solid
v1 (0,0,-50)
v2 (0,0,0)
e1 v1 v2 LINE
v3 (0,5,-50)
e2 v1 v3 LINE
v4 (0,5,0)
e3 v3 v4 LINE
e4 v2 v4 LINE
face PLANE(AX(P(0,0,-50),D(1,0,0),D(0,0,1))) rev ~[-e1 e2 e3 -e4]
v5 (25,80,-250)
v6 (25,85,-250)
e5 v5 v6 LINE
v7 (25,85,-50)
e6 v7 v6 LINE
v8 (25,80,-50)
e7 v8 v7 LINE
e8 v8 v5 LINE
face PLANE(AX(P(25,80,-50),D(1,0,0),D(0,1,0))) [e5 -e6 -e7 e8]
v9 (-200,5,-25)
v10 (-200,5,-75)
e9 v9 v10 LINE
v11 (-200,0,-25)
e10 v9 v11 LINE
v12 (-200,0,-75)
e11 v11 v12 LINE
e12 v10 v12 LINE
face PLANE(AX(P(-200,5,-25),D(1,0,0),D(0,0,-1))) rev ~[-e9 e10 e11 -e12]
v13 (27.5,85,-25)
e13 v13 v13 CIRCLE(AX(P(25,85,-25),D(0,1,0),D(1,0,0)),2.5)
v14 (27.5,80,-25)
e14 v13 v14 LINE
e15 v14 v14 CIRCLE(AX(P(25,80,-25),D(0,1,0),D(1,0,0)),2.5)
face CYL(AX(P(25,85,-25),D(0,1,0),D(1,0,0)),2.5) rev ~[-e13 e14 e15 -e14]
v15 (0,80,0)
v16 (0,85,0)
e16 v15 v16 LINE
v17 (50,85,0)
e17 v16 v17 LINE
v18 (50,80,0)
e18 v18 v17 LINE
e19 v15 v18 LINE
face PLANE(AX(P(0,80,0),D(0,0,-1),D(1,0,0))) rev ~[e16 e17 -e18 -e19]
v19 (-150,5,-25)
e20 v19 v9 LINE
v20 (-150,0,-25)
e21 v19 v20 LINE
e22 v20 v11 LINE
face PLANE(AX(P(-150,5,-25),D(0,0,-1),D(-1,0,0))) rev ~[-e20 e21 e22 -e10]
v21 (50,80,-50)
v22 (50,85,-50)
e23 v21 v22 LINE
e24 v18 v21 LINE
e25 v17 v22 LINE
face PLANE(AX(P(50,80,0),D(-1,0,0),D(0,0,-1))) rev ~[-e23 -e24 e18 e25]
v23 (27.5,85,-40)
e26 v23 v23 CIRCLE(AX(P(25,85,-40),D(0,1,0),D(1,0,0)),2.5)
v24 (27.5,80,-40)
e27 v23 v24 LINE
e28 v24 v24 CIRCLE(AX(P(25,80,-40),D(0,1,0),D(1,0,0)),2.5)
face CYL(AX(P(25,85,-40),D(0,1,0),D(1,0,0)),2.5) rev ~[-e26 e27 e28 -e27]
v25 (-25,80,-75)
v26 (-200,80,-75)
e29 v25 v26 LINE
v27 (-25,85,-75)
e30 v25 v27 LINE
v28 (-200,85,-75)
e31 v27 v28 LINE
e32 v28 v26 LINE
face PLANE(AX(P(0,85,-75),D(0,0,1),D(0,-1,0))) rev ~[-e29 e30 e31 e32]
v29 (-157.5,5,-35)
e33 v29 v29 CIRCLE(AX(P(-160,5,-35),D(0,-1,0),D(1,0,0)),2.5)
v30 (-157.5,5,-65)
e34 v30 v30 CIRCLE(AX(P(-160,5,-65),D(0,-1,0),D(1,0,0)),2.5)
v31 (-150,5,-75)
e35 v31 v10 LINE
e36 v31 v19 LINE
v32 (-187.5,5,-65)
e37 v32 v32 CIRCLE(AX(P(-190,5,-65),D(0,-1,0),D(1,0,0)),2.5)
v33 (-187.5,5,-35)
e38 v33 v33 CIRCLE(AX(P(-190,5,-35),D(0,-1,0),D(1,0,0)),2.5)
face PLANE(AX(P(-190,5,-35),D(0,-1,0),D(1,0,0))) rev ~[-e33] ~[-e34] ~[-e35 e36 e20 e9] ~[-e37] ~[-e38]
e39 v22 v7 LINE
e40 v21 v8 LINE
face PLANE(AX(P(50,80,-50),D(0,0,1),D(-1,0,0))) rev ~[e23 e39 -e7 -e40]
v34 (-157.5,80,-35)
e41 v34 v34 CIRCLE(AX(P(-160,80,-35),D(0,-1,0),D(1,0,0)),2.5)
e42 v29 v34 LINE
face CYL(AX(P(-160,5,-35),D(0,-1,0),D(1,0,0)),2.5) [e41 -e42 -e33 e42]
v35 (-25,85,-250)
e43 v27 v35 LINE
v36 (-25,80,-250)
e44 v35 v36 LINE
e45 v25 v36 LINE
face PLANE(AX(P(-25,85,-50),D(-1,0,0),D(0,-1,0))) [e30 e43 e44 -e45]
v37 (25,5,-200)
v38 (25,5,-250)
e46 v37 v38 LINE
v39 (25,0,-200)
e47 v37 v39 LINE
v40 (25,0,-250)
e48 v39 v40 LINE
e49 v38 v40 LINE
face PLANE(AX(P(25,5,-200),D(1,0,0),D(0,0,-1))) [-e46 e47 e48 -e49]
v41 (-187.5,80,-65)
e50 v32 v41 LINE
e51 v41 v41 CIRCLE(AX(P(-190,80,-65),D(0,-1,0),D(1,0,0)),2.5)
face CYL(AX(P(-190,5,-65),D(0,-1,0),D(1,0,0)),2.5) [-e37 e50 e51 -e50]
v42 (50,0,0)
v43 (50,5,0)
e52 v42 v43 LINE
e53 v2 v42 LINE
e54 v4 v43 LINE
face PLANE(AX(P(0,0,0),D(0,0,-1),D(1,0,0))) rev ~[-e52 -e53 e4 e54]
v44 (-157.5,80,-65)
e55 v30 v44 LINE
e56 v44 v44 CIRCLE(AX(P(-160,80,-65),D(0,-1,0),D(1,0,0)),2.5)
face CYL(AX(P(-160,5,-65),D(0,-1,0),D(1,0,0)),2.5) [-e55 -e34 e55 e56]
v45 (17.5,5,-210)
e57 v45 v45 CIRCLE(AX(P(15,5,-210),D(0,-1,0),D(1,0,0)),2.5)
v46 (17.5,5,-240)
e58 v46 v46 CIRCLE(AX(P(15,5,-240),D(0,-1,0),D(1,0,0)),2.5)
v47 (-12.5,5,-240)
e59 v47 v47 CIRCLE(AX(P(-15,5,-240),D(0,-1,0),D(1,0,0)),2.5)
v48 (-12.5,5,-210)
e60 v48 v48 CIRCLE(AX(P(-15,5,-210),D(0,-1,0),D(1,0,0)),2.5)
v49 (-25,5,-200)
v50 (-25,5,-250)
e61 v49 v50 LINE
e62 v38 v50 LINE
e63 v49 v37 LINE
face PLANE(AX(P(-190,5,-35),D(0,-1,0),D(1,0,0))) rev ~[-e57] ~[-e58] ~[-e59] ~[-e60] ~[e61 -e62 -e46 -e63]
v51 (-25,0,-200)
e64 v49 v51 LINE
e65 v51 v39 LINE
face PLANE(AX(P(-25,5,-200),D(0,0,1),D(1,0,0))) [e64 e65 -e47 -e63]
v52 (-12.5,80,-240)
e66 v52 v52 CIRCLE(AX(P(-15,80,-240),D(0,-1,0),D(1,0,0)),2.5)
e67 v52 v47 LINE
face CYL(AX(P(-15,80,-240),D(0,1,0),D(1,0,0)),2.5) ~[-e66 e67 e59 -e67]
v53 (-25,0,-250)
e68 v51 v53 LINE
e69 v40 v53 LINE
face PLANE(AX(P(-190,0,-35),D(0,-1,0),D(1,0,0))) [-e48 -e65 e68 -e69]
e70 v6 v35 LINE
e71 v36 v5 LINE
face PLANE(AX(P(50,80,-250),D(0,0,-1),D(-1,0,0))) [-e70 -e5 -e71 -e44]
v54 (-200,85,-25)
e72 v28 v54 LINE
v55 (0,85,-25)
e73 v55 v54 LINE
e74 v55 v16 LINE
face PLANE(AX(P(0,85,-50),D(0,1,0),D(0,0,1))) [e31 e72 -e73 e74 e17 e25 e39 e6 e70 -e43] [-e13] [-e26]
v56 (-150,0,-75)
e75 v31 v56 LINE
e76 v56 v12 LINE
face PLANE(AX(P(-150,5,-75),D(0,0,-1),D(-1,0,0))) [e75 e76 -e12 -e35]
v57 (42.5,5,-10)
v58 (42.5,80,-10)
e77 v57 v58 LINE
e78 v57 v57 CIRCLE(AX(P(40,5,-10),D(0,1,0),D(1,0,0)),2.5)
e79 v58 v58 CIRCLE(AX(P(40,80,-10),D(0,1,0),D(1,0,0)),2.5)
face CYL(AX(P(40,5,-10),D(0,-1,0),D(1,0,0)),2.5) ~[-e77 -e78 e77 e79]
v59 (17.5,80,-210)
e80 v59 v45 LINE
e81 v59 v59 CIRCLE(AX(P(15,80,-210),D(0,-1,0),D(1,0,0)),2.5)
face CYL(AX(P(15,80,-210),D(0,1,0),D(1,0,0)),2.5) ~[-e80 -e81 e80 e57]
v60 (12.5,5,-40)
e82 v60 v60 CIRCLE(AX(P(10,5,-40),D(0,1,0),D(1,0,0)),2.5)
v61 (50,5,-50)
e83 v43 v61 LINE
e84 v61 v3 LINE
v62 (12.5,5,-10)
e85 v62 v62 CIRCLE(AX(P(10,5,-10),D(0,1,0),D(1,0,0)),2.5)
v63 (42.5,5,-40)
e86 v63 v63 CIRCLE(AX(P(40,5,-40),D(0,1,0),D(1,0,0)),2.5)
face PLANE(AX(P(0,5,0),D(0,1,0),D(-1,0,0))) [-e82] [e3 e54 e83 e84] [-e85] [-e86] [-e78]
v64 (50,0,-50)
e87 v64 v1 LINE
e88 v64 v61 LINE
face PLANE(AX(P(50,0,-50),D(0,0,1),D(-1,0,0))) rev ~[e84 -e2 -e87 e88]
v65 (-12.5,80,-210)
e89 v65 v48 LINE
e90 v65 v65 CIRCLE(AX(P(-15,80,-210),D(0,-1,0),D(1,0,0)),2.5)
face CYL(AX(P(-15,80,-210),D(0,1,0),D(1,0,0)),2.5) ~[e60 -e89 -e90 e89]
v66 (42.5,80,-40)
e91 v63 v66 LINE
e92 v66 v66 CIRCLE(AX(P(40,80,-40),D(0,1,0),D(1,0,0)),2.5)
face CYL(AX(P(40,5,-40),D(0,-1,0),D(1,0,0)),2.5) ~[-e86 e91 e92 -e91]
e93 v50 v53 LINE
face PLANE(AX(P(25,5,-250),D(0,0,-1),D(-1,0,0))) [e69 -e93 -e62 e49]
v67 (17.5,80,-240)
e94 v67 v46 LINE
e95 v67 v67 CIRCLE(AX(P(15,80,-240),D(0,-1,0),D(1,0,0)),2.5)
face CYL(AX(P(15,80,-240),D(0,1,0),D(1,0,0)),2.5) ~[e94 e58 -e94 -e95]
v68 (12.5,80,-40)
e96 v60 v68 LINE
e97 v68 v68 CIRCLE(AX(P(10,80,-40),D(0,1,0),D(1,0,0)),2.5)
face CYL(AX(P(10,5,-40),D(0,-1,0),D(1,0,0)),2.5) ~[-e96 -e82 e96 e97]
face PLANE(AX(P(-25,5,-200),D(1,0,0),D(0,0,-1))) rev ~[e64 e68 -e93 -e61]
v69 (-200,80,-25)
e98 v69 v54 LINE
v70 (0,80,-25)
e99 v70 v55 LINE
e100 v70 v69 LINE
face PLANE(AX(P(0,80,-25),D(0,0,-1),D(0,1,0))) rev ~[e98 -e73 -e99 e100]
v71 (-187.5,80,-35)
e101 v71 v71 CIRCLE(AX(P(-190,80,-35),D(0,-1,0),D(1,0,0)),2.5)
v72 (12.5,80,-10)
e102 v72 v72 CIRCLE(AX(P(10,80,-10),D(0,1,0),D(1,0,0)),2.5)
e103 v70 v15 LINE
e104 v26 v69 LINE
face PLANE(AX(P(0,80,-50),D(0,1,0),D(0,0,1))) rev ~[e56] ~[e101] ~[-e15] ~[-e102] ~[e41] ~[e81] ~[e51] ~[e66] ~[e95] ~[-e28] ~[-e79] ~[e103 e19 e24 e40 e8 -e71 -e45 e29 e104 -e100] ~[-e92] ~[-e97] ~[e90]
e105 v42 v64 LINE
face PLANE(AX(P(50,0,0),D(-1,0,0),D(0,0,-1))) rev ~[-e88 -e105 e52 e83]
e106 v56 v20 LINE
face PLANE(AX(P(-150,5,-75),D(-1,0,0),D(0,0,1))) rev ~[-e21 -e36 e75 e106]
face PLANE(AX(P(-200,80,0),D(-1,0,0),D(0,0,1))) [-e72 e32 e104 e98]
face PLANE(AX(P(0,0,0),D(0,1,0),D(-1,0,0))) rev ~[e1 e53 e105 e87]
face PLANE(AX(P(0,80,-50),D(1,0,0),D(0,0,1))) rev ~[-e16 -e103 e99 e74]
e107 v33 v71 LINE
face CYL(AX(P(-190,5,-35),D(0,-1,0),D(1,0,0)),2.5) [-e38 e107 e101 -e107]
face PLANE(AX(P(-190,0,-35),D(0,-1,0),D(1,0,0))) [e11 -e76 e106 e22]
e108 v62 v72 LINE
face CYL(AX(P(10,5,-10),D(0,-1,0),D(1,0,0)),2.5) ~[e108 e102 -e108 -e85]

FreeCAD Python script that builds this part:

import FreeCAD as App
import Part
import Sketcher
from FreeCAD import Vector


def add_polygon(sketch, points):
    """Adds a closed chain of lines whose ends are joined by coincident constraints."""
    first, n = sketch.GeometryCount, len(points)
    for a, b in zip(points, points[1:] + points[:1]):
        sketch.addGeometry(Part.LineSegment(App.Vector(*a, 0), App.Vector(*b, 0)), False)
    for i in range(n):
        sketch.addConstraint(Sketcher.Constraint("Coincident", first + i, 2, first + (i + 1) % n, 1))

doc = App.newDocument("Part")
body = doc.addObject("PartDesign::Body", "Body")

# Sketch on XZ plane
sketch1 = doc.addObject("Sketcher::SketchObject", "Sketch")
body.addObject(sketch1)
sketch1.AttachmentSupport = (doc.XZ_Plane, [""])
sketch1.MapMode = "FlatFace"
add_polygon(sketch1, [(0, -50), (0, 0), (50, 0), (50, -50)])  # lines 0-3
sketch1.addConstraint([
    Sketcher.Constraint("Vertical", 0),
    Sketcher.Constraint("Horizontal", 1),
    Sketcher.Constraint("Vertical", 2),
    Sketcher.Constraint("Horizontal", 3),
    Sketcher.Constraint("Coincident", 0, 2, -1, 1),
    Sketcher.Constraint("Equal", 3, 0),
    Sketcher.Constraint("DistanceX", 1, 1, 1, 2, 50.0),
])
pad1 = doc.addObject("PartDesign::Pad", "Pad")
body.addObject(pad1)
pad1.Profile = sketch1
pad1.Length = 5
pad1.Reversed = True

# Sketch on XZ plane
sketch2 = doc.addObject("Sketcher::SketchObject", "Sketch001")
body.addObject(sketch2)
sketch2.AttachmentSupport = (doc.XZ_Plane, [""])
sketch2.MapMode = "FlatFace"
sketch2.AttachmentOffset = App.Placement(Vector(0, 0, -5), App.Rotation())
sketch2.addGeometry([
    Part.Circle(Vector(10, -10, 0), Vector(0, 0, 1), 2.5),
    Part.Circle(Vector(10, -40, 0), Vector(0, 0, 1), 2.5),
    Part.Circle(Vector(40, -10, 0), Vector(0, 0, 1), 2.5),
    Part.Circle(Vector(40, -40, 0), Vector(0, 0, 1), 2.5),
], False)
sketch2.addConstraint([
    Sketcher.Constraint("Equal", 0, 1),
    Sketcher.Constraint("Equal", 1, 2),
    Sketcher.Constraint("Equal", 2, 3),
    Sketcher.Constraint("Horizontal", 0, 3, 2, 3),
    Sketcher.Constraint("Horizontal", 1, 3, 3, 3),
    Sketcher.Constraint("Vertical", 0, 3, 1, 3),
    Sketcher.Constraint("Vertical", 2, 3, 3, 3),
    Sketcher.Constraint("Diameter", 0, 5.0),
    Sketcher.Constraint("DistanceX", -1, 1, 0, 3, 10.0),
    Sketcher.Constraint("DistanceY", 0, 3, -1, 1, 10.0),
    Sketcher.Constraint("DistanceY", 1, 3, -1, 1, 40.0),
    Sketcher.Constraint("DistanceX", -1, 1, 2, 3, 40.0),
])
pad2 = doc.addObject("PartDesign::Pad", "Pad001")
body.addObject(pad2)
pad2.Profile = sketch2
pad2.Length = 75
pad2.Reversed = True

# Sketch on XZ plane
sketch3 = doc.addObject("Sketcher::SketchObject", "Sketch002")
body.addObject(sketch3)
sketch3.AttachmentSupport = (doc.XZ_Plane, [""])
sketch3.MapMode = "FlatFace"
sketch3.AttachmentOffset = App.Placement(Vector(0, 0, -80), App.Rotation())
add_polygon(sketch3, [(0, -50), (0, 0), (50, 0), (50, -50)])  # lines 0-3
sketch3.addConstraint([
    Sketcher.Constraint("Vertical", 0),
    Sketcher.Constraint("Horizontal", 1),
    Sketcher.Constraint("Vertical", 2),
    Sketcher.Constraint("Horizontal", 3),
    Sketcher.Constraint("Coincident", 0, 2, -1, 1),
    Sketcher.Constraint("Equal", 3, 0),
    Sketcher.Constraint("DistanceX", 1, 1, 1, 2, 50.0),
])
pad3 = doc.addObject("PartDesign::Pad", "Pad002")
body.addObject(pad3)
pad3.Profile = sketch3
pad3.Length = 5
pad3.Reversed = True

# Sketch on XZ plane
sketch4 = doc.addObject("Sketcher::SketchObject", "Sketch003")
body.addObject(sketch4)
sketch4.AttachmentSupport = (doc.XZ_Plane, [""])
sketch4.MapMode = "FlatFace"
sketch4.AttachmentOffset = App.Placement(Vector(0, 0, -85), App.Rotation())
sketch4.addGeometry(Part.Circle(Vector(25, -25, 0), Vector(0, 0, 1), 2.5), False)
sketch4.addConstraint([
    Sketcher.Constraint("Diameter", 0, 5.0),
    Sketcher.Constraint("DistanceX", -1, 1, 0, 3, 25.0),
    Sketcher.Constraint("DistanceY", 0, 3, -1, 1, 25.0),
])
pocket1 = doc.addObject("PartDesign::Pocket", "Pocket")
body.addObject(pocket1)
pocket1.Profile = sketch4
pocket1.Length = 5
pocket1.Reversed = True

# Sketch on XY plane
sketch5 = doc.addObject("Sketcher::SketchObject", "Sketch004")
body.addObject(sketch5)
sketch5.AttachmentSupport = (doc.XY_Plane, [""])
sketch5.MapMode = "FlatFace"
sketch5.AttachmentOffset = App.Placement(Vector(0, 0, -50), App.Rotation())
add_polygon(sketch5, [(-25, 85), (25, 85), (25, 80), (-25, 80)])  # lines 0-3
sketch5.addConstraint([
    Sketcher.Constraint("Horizontal", 0),
    Sketcher.Constraint("Vertical", 1),
    Sketcher.Constraint("Horizontal", 2),
    Sketcher.Constraint("Vertical", 3),
    Sketcher.Constraint("DistanceX", 0, 1, 0, 2, 50.0),
    Sketcher.Constraint("DistanceY", 1, 2, 1, 1, 5.0),
    Sketcher.Constraint("DistanceX", -1, 1, 0, 2, 25.0),
    Sketcher.Constraint("DistanceY", -1, 1, 0, 2, 85.0),
])
pad4 = doc.addObject("PartDesign::Pad", "Pad003")
body.addObject(pad4)
pad4.Profile = sketch5
pad4.Length = 200
pad4.Reversed = True

# Sketch on YZ plane
sketch6 = doc.addObject("Sketcher::SketchObject", "Sketch005")
body.addObject(sketch6)
sketch6.AttachmentSupport = (doc.YZ_Plane, [""])
sketch6.MapMode = "FlatFace"
add_polygon(sketch6, [(85, -25), (85, -75), (80, -75), (80, -25)])  # lines 0-3
sketch6.addConstraint([
    Sketcher.Constraint("Vertical", 0),
    Sketcher.Constraint("Horizontal", 1),
    Sketcher.Constraint("Vertical", 2),
    Sketcher.Constraint("Horizontal", 3),
    Sketcher.Constraint("DistanceY", 0, 2, 0, 1, 50.0),
    Sketcher.Constraint("DistanceX", 1, 2, 1, 1, 5.0),
    Sketcher.Constraint("DistanceX", -1, 1, 0, 2, 85.0),
    Sketcher.Constraint("DistanceY", 0, 2, -1, 1, 75.0),
])
pad5 = doc.addObject("PartDesign::Pad", "Pad004")
body.addObject(pad5)
pad5.Profile = sketch6
pad5.Length = 200
pad5.Reversed = True

# Sketch on XZ plane
sketch7 = doc.addObject("Sketcher::SketchObject", "Sketch006")
body.addObject(sketch7)
sketch7.AttachmentSupport = (doc.XZ_Plane, [""])
sketch7.MapMode = "FlatFace"
sketch7.AttachmentOffset = App.Placement(Vector(0, 0, -85), App.Rotation())
sketch7.addGeometry(Part.Circle(Vector(25, -40, 0), Vector(0, 0, 1), 2.5), False)
sketch7.addConstraint([
    Sketcher.Constraint("Diameter", 0, 5.0),
    Sketcher.Constraint("DistanceX", -1, 1, 0, 3, 25.0),
    Sketcher.Constraint("DistanceY", 0, 3, -1, 1, 40.0),
])
pocket2 = doc.addObject("PartDesign::Pocket", "Pocket001")
body.addObject(pocket2)
pocket2.Profile = sketch7
pocket2.Length = 10
pocket2.Reversed = True

# Sketch on XZ plane
sketch8 = doc.addObject("Sketcher::SketchObject", "Sketch007")
body.addObject(sketch8)
sketch8.AttachmentSupport = (doc.XZ_Plane, [""])
sketch8.MapMode = "FlatFace"
sketch8.AttachmentOffset = App.Placement(Vector(0, 0, -80), App.Rotation())
sketch8.addGeometry([
    Part.Circle(Vector(15, -240, 0), Vector(0, 0, 1), 2.5),
    Part.Circle(Vector(-15, -240, 0), Vector(0, 0, 1), 2.5),
    Part.Circle(Vector(-15, -210, 0), Vector(0, 0, 1), 2.5),
    Part.Circle(Vector(15, -210, 0), Vector(0, 0, 1), 2.5),
], False)
sketch8.addConstraint([
    Sketcher.Constraint("Equal", 0, 1),
    Sketcher.Constraint("Equal", 1, 2),
    Sketcher.Constraint("Equal", 2, 3),
    Sketcher.Constraint("Symmetric", 0, 3, 1, 3, -2),
    Sketcher.Constraint("Symmetric", 2, 3, 3, 3, -2),
    Sketcher.Constraint("Vertical", 1, 3, 2, 3),
    Sketcher.Constraint("Diameter", 0, 5.0),
    Sketcher.Constraint("DistanceX", -1, 1, 0, 3, 15.0),
    Sketcher.Constraint("DistanceY", 0, 3, -1, 1, 240.0),
    Sketcher.Constraint("DistanceY", 2, 3, -1, 1, 210.0),
])
pad6 = doc.addObject("PartDesign::Pad", "Pad005")
body.addObject(pad6)
pad6.Profile = sketch8
pad6.Length = 75

# Sketch on XZ plane
sketch9 = doc.addObject("Sketcher::SketchObject", "Sketch008")
body.addObject(sketch9)
sketch9.AttachmentSupport = (doc.XZ_Plane, [""])
sketch9.MapMode = "FlatFace"
sketch9.AttachmentOffset = App.Placement(Vector(0, 0, -5), App.Rotation())
sketch9.addGeometry([
    Part.Circle(Vector(-160, -65, 0), Vector(0, 0, 1), 2.5),
    Part.Circle(Vector(-190, -65, 0), Vector(0, 0, 1), 2.5),
    Part.Circle(Vector(-160, -35, 0), Vector(0, 0, 1), 2.5),
    Part.Circle(Vector(-190, -35, 0), Vector(0, 0, 1), 2.5),
], False)
sketch9.addConstraint([
    Sketcher.Constraint("Equal", 0, 1),
    Sketcher.Constraint("Equal", 1, 2),
    Sketcher.Constraint("Equal", 2, 3),
    Sketcher.Constraint("Horizontal", 0, 3, 1, 3),
    Sketcher.Constraint("Horizontal", 2, 3, 3, 3),
    Sketcher.Constraint("Vertical", 0, 3, 2, 3),
    Sketcher.Constraint("Vertical", 1, 3, 3, 3),
    Sketcher.Constraint("Diameter", 0, 5.0),
    Sketcher.Constraint("DistanceX", 0, 3, -1, 1, 160.0),
    Sketcher.Constraint("DistanceY", 0, 3, -1, 1, 65.0),
    Sketcher.Constraint("DistanceX", 1, 3, -1, 1, 190.0),
    Sketcher.Constraint("DistanceY", 2, 3, -1, 1, 35.0),
])
pad7 = doc.addObject("PartDesign::Pad", "Pad006")
body.addObject(pad7)
pad7.Profile = sketch9
pad7.Length = 75
pad7.Reversed = True

# Sketch on XZ plane
sketch10 = doc.addObject("Sketcher::SketchObject", "Sketch009")
body.addObject(sketch10)
sketch10.AttachmentSupport = (doc.XZ_Plane, [""])
sketch10.MapMode = "FlatFace"
sketch10.AttachmentOffset = App.Placement(Vector(0, 0, -5), App.Rotation())
add_polygon(sketch10, [(-200, -75), (-150, -75), (-150, -25), (-200, -25)])  # lines 0-3
add_polygon(sketch10, [(25, -250), (25, -200), (-25, -200), (-25, -250)])  # lines 4-7
sketch10.addConstraint([
    Sketcher.Constraint("Horizontal", 0),
    Sketcher.Constraint("Vertical", 1),
    Sketcher.Constraint("Horizontal", 2),
    Sketcher.Constraint("Vertical", 3),
    Sketcher.Constraint("Vertical", 4),
    Sketcher.Constraint("Horizontal", 5),
    Sketcher.Constraint("Vertical", 6),
    Sketcher.Constraint("Horizontal", 7),
    Sketcher.Constraint("Equal", 2, 5),
    Sketcher.Constraint("Equal", 7, 1),
    Sketcher.Constraint("Equal", 3, 4),
    Sketcher.Constraint("DistanceX", 0, 1, 0, 2, 50.0),
    Sketcher.Constraint("DistanceX", 0, 2, -1, 1, 150.0),
    Sketcher.Constraint("DistanceY", 0, 2, -1, 1, 75.0),
    Sketcher.Constraint("DistanceX", -1, 1, 4, 2, 25.0),
    Sketcher.Constraint("DistanceY", 4, 2, -1, 1, 200.0),
])
pad8 = doc.addObject("PartDesign::Pad", "Pad007")
body.addObject(pad8)
pad8.Profile = sketch10
pad8.Length = 5

doc.recompute()
